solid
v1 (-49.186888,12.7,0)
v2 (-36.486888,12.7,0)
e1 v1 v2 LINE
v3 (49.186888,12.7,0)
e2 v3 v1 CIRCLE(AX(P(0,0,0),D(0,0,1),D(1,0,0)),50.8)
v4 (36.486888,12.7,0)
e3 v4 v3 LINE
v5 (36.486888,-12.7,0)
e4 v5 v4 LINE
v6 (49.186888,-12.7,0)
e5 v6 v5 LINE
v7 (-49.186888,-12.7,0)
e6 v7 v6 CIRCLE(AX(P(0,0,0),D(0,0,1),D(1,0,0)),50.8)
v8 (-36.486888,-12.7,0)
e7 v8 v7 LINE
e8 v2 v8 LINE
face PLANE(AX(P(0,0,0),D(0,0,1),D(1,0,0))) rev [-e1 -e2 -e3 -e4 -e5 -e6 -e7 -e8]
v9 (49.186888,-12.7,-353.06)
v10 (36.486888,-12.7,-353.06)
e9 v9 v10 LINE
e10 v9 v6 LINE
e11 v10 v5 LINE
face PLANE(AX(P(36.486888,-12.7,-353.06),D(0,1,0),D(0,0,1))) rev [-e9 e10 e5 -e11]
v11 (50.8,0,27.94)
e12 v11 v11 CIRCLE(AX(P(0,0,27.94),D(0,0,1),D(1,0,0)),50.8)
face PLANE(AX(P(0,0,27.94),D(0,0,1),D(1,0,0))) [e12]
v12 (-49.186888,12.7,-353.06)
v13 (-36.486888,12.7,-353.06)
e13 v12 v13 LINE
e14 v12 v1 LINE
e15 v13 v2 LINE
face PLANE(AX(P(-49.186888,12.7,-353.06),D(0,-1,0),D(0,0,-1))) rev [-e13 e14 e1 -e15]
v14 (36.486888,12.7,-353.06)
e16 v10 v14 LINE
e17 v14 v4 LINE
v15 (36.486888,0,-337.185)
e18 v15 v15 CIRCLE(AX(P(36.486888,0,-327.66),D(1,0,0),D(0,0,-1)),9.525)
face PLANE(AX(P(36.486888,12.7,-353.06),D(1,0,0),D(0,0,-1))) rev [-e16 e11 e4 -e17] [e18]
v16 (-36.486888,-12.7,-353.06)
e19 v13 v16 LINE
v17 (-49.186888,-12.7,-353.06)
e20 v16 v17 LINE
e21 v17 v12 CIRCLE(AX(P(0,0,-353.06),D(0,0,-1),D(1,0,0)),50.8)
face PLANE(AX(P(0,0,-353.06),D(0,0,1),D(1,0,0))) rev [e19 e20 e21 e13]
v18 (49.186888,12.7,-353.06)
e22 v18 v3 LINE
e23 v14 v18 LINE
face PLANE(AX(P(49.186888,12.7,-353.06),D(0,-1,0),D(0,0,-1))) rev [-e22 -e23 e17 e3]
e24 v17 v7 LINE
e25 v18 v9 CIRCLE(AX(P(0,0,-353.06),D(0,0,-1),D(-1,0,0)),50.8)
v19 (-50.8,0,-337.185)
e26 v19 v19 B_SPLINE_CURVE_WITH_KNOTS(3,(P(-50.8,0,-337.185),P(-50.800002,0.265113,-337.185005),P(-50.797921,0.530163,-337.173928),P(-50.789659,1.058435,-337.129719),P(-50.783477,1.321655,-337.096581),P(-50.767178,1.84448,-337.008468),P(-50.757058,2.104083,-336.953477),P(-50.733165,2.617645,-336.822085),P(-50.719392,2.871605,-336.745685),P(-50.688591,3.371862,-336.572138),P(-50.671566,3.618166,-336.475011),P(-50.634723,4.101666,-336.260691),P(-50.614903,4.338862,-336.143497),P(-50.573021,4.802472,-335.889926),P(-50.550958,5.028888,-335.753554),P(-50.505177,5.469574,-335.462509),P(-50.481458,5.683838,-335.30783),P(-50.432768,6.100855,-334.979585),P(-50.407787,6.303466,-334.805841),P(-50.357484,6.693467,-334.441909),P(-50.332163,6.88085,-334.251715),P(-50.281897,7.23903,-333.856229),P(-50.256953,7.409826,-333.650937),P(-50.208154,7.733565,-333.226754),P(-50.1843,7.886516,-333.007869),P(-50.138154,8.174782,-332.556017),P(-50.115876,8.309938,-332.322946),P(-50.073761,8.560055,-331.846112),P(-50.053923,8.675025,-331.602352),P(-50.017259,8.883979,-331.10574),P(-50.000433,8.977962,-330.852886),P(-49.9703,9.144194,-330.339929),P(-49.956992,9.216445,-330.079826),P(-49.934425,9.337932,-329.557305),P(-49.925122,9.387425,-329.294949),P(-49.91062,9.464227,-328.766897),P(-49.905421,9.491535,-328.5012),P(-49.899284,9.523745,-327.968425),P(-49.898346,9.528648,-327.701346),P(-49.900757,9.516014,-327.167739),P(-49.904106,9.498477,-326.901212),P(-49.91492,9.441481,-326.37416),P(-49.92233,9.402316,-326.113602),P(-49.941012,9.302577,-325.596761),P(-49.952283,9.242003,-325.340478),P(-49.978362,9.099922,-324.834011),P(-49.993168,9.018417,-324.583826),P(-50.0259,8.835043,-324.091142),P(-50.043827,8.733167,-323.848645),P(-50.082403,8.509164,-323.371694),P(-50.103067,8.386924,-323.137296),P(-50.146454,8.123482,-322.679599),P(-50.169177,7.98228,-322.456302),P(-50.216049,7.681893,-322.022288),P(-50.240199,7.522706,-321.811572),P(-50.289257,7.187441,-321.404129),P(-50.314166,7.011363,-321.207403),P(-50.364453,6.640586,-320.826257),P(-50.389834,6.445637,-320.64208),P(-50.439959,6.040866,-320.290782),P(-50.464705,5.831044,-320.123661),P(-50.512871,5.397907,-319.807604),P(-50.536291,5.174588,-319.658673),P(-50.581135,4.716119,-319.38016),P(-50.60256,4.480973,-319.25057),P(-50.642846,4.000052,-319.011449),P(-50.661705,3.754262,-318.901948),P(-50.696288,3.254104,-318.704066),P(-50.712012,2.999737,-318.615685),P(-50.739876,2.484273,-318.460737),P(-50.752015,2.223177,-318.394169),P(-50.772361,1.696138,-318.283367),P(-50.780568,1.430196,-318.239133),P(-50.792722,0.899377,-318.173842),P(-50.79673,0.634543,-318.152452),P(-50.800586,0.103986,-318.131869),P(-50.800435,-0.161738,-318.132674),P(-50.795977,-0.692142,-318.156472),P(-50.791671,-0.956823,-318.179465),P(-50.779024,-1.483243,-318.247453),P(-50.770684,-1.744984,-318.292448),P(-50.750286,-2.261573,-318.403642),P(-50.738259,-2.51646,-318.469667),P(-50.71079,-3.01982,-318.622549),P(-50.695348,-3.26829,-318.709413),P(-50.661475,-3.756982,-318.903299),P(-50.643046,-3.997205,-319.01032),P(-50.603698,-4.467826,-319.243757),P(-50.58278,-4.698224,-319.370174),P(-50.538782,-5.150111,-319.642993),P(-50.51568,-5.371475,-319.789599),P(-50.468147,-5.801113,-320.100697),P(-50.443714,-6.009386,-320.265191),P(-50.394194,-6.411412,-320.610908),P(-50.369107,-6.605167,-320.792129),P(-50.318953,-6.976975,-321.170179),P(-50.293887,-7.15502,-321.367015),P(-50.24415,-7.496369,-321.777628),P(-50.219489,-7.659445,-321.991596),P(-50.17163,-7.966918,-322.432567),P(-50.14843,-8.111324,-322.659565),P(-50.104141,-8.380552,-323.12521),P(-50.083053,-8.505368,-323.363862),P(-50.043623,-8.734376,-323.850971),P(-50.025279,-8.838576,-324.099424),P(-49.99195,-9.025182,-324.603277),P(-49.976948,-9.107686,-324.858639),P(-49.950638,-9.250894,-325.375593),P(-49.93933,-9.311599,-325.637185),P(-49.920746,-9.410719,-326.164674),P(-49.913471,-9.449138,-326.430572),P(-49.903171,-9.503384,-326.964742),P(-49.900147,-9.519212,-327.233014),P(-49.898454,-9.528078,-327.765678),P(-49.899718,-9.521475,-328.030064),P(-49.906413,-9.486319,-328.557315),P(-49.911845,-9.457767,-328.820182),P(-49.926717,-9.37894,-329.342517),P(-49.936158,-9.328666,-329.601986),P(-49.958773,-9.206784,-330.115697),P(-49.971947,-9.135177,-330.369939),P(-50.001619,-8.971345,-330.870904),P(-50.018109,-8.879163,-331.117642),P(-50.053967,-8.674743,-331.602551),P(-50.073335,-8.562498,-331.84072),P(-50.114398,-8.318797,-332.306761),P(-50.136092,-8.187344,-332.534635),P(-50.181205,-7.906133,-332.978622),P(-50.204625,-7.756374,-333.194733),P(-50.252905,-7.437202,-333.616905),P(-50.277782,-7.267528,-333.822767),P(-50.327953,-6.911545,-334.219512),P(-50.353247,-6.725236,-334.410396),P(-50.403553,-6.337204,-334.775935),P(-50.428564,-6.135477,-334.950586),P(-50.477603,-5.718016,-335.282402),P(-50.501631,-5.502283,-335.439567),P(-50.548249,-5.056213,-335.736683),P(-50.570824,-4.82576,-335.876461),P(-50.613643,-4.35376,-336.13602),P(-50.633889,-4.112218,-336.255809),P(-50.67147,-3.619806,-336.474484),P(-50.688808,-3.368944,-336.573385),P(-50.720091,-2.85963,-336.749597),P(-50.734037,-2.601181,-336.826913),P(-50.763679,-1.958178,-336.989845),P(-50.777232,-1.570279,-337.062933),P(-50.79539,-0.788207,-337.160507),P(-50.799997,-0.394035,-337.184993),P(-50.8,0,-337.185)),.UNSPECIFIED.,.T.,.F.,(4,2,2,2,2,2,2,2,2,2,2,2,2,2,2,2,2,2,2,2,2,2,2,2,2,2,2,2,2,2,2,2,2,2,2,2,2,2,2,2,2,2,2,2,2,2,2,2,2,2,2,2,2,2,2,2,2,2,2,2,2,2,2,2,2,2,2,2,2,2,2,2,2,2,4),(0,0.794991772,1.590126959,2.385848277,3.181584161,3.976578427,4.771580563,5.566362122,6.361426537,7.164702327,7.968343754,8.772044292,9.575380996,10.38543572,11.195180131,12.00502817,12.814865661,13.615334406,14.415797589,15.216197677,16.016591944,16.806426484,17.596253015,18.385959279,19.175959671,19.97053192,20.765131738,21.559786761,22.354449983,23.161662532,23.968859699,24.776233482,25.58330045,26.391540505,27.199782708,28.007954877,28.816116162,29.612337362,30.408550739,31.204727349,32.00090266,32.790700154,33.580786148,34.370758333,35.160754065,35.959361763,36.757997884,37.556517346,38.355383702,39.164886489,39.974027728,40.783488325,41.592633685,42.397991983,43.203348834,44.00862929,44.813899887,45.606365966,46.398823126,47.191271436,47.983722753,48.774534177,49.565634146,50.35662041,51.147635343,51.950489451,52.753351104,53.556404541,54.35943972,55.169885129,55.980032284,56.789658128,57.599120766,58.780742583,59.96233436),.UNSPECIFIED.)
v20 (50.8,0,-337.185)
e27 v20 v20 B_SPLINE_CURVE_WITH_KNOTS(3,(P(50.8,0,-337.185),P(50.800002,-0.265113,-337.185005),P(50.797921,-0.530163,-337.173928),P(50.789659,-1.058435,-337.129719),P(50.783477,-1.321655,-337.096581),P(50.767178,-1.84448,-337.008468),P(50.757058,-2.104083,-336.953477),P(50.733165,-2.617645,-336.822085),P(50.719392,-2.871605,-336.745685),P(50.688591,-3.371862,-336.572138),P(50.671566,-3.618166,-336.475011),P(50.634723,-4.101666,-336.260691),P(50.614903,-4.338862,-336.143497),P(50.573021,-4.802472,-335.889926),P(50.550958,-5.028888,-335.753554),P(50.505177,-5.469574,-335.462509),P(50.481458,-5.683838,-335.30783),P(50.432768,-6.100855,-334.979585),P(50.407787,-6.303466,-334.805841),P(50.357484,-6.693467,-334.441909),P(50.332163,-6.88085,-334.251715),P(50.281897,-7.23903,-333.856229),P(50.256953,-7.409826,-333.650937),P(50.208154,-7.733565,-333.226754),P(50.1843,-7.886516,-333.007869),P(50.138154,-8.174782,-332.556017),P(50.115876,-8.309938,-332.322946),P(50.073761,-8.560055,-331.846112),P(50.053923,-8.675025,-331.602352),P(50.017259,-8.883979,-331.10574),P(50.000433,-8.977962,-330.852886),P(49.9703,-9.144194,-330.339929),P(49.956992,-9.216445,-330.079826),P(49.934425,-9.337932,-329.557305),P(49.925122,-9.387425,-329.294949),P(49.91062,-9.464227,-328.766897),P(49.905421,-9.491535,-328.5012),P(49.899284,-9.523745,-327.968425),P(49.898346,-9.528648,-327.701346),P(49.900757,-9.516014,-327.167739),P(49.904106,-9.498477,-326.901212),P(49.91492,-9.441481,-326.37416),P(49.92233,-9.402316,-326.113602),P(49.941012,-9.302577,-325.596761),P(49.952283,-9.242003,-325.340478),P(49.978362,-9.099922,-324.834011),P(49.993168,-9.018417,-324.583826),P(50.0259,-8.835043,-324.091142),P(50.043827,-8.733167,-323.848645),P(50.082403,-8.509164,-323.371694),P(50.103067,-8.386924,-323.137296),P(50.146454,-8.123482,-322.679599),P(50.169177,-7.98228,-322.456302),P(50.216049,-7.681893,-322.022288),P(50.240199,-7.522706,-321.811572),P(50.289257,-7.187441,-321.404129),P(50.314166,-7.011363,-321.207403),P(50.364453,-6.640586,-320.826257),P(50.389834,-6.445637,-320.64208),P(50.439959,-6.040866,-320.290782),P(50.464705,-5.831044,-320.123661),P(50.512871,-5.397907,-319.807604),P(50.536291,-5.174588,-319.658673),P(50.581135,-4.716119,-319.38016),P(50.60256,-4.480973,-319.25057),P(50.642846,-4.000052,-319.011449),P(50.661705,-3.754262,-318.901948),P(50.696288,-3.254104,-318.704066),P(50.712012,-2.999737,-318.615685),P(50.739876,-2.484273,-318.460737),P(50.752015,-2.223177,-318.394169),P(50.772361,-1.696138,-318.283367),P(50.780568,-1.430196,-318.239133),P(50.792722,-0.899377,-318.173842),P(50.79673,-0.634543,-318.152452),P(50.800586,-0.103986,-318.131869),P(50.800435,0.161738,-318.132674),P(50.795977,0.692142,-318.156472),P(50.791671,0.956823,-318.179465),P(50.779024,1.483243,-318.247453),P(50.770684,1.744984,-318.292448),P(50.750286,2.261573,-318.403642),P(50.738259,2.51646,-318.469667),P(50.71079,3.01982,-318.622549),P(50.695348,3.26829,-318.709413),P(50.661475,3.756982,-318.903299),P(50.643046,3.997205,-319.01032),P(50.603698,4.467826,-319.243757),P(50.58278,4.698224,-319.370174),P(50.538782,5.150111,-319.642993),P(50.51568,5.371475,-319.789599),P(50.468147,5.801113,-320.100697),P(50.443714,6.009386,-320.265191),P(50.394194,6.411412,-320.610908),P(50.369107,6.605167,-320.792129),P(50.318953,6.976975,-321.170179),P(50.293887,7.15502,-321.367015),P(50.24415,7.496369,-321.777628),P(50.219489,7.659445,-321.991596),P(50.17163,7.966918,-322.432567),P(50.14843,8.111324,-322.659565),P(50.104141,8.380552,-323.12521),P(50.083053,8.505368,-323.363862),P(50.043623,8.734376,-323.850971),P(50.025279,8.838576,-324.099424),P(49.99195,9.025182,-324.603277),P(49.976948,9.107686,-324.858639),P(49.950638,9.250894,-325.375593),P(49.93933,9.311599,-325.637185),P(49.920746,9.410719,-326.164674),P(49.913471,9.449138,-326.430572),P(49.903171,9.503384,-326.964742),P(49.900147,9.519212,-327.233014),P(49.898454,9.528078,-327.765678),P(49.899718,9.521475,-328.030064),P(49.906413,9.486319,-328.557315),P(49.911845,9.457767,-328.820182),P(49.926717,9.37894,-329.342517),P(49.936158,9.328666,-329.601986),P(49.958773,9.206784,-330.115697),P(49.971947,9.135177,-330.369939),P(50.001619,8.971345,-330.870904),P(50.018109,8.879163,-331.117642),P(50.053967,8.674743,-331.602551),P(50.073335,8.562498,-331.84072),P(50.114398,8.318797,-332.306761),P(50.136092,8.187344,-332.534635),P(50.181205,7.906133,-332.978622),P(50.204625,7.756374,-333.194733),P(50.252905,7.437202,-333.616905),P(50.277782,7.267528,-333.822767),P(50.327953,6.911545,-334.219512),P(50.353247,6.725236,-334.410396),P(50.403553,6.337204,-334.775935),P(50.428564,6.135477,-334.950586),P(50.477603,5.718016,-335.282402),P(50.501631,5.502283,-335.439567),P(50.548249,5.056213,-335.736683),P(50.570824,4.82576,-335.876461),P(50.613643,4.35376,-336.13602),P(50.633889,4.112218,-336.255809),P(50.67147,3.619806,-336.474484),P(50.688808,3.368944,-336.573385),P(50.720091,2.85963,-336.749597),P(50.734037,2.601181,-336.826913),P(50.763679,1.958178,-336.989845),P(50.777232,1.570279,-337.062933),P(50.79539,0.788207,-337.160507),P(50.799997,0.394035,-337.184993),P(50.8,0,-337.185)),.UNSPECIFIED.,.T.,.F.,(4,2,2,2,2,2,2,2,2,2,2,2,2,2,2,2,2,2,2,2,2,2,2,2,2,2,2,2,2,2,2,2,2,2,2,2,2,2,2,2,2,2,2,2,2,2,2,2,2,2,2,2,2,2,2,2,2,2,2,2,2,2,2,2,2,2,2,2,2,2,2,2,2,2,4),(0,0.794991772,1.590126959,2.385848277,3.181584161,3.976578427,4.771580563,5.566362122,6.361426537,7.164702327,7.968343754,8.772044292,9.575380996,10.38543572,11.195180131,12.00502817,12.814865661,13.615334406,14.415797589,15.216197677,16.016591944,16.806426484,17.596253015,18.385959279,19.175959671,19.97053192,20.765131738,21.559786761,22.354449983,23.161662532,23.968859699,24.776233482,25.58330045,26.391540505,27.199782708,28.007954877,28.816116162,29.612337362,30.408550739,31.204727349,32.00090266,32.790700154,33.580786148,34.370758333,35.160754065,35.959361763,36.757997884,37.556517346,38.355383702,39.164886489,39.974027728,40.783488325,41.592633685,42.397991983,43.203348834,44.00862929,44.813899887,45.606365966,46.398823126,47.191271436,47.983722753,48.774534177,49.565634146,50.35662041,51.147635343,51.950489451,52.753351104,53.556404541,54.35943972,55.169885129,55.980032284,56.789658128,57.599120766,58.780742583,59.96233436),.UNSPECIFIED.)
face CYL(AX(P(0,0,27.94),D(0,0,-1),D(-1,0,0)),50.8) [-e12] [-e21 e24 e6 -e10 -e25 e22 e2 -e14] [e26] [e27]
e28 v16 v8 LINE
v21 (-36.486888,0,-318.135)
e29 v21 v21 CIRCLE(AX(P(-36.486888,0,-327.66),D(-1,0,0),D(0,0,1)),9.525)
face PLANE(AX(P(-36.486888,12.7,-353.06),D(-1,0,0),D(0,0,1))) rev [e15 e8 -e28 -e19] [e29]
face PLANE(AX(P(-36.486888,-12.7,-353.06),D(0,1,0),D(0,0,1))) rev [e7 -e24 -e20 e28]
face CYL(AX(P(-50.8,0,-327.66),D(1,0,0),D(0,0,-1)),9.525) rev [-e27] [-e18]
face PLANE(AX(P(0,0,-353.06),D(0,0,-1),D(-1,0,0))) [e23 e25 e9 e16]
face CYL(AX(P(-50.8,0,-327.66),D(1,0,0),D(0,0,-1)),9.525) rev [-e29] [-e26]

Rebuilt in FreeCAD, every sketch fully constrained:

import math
import FreeCAD as App
import Part
import Sketcher
Q = App.Units.Quantity

doc = App.newDocument("Part")
params = doc.addObject("Spreadsheet::Sheet", "Params")
for row, (alias, value) in enumerate([
    ("sketch1_diameter", "4 in"),
    ("pad1_length", "1.1 in"),
    ("sketch2_height", "1 in"),
    ("sketch2_width", "0.5 in"),
    ("pad2_length", "13.9 in"),
    ("sketch3_diameter", "0.75 in"),
], start=1):
    params.set(f"A{row}", alias)
    params.set(f"B{row}", "=" + value)
    params.setAlias(f"B{row}", alias)

body = doc.addObject("PartDesign::Body", "Body")

sketch1 = doc.addObject("Sketcher::SketchObject", "Sketch")
body.addObject(sketch1)
sketch1.AttachmentSupport = (doc.XY_Plane, [""])
sketch1.MapMode = "FlatFace"
sketch1.addGeometry(Part.Circle(App.Vector(0, 0, 0), App.Vector(0, 0, 1), 51), False)
sketch1.addConstraint([
    Sketcher.Constraint("Coincident", 0, 3, -1, 1),
    Sketcher.Constraint("Diameter", 0, Q("4 in")),
])
sketch1.setExpression("Constraints[1]", "Params.sketch1_diameter")
pad1 = doc.addObject("PartDesign::Pad", "Pad")
body.addObject(pad1)
pad1.Profile = sketch1
pad1.setExpression("Length", "Params.pad1_length")

sketch2 = doc.addObject("Sketcher::SketchObject", "Sketch001")
body.addObject(sketch2)
sketch2.AttachmentSupport = (doc.XY_Plane, [""])
sketch2.MapMode = "FlatFace"
sketch2.addGeometry([
    Part.LineSegment(App.Vector(36.486888, 12.7, 0), App.Vector(49.186888, 12.7, 0)),
    Part.ArcOfCircle(Part.Circle(App.Vector(0.000015, 0, 0), App.Vector(0, 0, 1), 50.799985), math.radians(-14.477517), math.radians(14.477517)),
    Part.LineSegment(App.Vector(49.186888, -12.7, 0), App.Vector(36.486888, -12.7, 0)),
    Part.LineSegment(App.Vector(36.486888, -12.7, 0), App.Vector(36.486888, 12.7, 0)),
    Part.LineSegment(App.Vector(-49.186888, 12.7, 0), App.Vector(-36.486888, 12.7, 0)),
    Part.LineSegment(App.Vector(-36.486888, 12.7, 0), App.Vector(-36.486888, -12.7, 0)),
    Part.LineSegment(App.Vector(-36.486888, -12.7, 0), App.Vector(-49.186888, -12.7, 0)),
    Part.ArcOfCircle(Part.Circle(App.Vector(-0.000015, 0, 0), App.Vector(0, 0, 1), 50.799985), math.radians(165.522483), math.radians(194.477517)),
], False)
sketch2.addConstraint([
    Sketcher.Constraint("Coincident", 0, 2, 1, 2),
    Sketcher.Constraint("Coincident", 1, 1, 2, 1),
    Sketcher.Constraint("Coincident", 2, 2, 3, 1),
    Sketcher.Constraint("Coincident", 3, 2, 0, 1),
    Sketcher.Constraint("Coincident", 4, 2, 5, 1),
    Sketcher.Constraint("Coincident", 5, 2, 6, 1),
    Sketcher.Constraint("Coincident", 6, 2, 7, 2),
    Sketcher.Constraint("Coincident", 7, 1, 4, 1),
    Sketcher.Constraint("Horizontal", 0),
    Sketcher.Constraint("Horizontal", 2),
    Sketcher.Constraint("Vertical", 3),
    Sketcher.Constraint("Horizontal", 4),
    Sketcher.Constraint("Vertical", 5),
    Sketcher.Constraint("Horizontal", 6),
    Sketcher.Constraint("Equal", 1, 7),
    Sketcher.Constraint("Symmetric", 1, 3, 7, 3, -1, 1),
    Sketcher.Constraint("Symmetric", 2, 2, 4, 2, -1, 1),
    Sketcher.Constraint("Symmetric", 1, 1, 6, 2, -2),
    Sketcher.Constraint("Horizontal", 3, 2, 4, 2),
    Sketcher.Constraint("DistanceY", 3, 1, 3, 2, Q("1 in")),
    Sketcher.Constraint("DistanceX", 0, 1, 0, 2, Q("0.5 in")),
    Sketcher.Constraint("Radius", 1, 50.799985),
    Sketcher.Constraint("DistanceX", -1, 1, 0, 2, 49.186888),
])
sketch2.setExpression("Constraints[19]", "Params.sketch2_height")
sketch2.setExpression("Constraints[20]", "Params.sketch2_width")
pad2 = doc.addObject("PartDesign::Pad", "Pad001")
body.addObject(pad2)
pad2.Profile = sketch2
pad2.setExpression("Length", "Params.pad2_length")
pad2.Reversed = True

sketch3 = doc.addObject("Sketcher::SketchObject", "Sketch002")
body.addObject(sketch3)
sketch3.AttachmentSupport = (doc.YZ_Plane, [""])
sketch3.MapMode = "FlatFace"
sketch3.addGeometry(Part.Circle(App.Vector(0, -328, 0), App.Vector(0, 0, 1), 10), False)
sketch3.addConstraint([
    Sketcher.Constraint("PointOnObject", 0, 3, -2),
    Sketcher.Constraint("Diameter", 0, Q("0.75 in")),
    Sketcher.Constraint("DistanceY", 0, 3, -1, 1, Q("12.9 in")),
])
sketch3.setExpression("Constraints[1]", "Params.sketch3_diameter")
pocket1 = doc.addObject("PartDesign::Pocket", "Pocket")
body.addObject(pocket1)
pocket1.Profile = sketch3
pocket1.Type = "ThroughAll"
pocket1.Midplane = True

doc.recompute()
